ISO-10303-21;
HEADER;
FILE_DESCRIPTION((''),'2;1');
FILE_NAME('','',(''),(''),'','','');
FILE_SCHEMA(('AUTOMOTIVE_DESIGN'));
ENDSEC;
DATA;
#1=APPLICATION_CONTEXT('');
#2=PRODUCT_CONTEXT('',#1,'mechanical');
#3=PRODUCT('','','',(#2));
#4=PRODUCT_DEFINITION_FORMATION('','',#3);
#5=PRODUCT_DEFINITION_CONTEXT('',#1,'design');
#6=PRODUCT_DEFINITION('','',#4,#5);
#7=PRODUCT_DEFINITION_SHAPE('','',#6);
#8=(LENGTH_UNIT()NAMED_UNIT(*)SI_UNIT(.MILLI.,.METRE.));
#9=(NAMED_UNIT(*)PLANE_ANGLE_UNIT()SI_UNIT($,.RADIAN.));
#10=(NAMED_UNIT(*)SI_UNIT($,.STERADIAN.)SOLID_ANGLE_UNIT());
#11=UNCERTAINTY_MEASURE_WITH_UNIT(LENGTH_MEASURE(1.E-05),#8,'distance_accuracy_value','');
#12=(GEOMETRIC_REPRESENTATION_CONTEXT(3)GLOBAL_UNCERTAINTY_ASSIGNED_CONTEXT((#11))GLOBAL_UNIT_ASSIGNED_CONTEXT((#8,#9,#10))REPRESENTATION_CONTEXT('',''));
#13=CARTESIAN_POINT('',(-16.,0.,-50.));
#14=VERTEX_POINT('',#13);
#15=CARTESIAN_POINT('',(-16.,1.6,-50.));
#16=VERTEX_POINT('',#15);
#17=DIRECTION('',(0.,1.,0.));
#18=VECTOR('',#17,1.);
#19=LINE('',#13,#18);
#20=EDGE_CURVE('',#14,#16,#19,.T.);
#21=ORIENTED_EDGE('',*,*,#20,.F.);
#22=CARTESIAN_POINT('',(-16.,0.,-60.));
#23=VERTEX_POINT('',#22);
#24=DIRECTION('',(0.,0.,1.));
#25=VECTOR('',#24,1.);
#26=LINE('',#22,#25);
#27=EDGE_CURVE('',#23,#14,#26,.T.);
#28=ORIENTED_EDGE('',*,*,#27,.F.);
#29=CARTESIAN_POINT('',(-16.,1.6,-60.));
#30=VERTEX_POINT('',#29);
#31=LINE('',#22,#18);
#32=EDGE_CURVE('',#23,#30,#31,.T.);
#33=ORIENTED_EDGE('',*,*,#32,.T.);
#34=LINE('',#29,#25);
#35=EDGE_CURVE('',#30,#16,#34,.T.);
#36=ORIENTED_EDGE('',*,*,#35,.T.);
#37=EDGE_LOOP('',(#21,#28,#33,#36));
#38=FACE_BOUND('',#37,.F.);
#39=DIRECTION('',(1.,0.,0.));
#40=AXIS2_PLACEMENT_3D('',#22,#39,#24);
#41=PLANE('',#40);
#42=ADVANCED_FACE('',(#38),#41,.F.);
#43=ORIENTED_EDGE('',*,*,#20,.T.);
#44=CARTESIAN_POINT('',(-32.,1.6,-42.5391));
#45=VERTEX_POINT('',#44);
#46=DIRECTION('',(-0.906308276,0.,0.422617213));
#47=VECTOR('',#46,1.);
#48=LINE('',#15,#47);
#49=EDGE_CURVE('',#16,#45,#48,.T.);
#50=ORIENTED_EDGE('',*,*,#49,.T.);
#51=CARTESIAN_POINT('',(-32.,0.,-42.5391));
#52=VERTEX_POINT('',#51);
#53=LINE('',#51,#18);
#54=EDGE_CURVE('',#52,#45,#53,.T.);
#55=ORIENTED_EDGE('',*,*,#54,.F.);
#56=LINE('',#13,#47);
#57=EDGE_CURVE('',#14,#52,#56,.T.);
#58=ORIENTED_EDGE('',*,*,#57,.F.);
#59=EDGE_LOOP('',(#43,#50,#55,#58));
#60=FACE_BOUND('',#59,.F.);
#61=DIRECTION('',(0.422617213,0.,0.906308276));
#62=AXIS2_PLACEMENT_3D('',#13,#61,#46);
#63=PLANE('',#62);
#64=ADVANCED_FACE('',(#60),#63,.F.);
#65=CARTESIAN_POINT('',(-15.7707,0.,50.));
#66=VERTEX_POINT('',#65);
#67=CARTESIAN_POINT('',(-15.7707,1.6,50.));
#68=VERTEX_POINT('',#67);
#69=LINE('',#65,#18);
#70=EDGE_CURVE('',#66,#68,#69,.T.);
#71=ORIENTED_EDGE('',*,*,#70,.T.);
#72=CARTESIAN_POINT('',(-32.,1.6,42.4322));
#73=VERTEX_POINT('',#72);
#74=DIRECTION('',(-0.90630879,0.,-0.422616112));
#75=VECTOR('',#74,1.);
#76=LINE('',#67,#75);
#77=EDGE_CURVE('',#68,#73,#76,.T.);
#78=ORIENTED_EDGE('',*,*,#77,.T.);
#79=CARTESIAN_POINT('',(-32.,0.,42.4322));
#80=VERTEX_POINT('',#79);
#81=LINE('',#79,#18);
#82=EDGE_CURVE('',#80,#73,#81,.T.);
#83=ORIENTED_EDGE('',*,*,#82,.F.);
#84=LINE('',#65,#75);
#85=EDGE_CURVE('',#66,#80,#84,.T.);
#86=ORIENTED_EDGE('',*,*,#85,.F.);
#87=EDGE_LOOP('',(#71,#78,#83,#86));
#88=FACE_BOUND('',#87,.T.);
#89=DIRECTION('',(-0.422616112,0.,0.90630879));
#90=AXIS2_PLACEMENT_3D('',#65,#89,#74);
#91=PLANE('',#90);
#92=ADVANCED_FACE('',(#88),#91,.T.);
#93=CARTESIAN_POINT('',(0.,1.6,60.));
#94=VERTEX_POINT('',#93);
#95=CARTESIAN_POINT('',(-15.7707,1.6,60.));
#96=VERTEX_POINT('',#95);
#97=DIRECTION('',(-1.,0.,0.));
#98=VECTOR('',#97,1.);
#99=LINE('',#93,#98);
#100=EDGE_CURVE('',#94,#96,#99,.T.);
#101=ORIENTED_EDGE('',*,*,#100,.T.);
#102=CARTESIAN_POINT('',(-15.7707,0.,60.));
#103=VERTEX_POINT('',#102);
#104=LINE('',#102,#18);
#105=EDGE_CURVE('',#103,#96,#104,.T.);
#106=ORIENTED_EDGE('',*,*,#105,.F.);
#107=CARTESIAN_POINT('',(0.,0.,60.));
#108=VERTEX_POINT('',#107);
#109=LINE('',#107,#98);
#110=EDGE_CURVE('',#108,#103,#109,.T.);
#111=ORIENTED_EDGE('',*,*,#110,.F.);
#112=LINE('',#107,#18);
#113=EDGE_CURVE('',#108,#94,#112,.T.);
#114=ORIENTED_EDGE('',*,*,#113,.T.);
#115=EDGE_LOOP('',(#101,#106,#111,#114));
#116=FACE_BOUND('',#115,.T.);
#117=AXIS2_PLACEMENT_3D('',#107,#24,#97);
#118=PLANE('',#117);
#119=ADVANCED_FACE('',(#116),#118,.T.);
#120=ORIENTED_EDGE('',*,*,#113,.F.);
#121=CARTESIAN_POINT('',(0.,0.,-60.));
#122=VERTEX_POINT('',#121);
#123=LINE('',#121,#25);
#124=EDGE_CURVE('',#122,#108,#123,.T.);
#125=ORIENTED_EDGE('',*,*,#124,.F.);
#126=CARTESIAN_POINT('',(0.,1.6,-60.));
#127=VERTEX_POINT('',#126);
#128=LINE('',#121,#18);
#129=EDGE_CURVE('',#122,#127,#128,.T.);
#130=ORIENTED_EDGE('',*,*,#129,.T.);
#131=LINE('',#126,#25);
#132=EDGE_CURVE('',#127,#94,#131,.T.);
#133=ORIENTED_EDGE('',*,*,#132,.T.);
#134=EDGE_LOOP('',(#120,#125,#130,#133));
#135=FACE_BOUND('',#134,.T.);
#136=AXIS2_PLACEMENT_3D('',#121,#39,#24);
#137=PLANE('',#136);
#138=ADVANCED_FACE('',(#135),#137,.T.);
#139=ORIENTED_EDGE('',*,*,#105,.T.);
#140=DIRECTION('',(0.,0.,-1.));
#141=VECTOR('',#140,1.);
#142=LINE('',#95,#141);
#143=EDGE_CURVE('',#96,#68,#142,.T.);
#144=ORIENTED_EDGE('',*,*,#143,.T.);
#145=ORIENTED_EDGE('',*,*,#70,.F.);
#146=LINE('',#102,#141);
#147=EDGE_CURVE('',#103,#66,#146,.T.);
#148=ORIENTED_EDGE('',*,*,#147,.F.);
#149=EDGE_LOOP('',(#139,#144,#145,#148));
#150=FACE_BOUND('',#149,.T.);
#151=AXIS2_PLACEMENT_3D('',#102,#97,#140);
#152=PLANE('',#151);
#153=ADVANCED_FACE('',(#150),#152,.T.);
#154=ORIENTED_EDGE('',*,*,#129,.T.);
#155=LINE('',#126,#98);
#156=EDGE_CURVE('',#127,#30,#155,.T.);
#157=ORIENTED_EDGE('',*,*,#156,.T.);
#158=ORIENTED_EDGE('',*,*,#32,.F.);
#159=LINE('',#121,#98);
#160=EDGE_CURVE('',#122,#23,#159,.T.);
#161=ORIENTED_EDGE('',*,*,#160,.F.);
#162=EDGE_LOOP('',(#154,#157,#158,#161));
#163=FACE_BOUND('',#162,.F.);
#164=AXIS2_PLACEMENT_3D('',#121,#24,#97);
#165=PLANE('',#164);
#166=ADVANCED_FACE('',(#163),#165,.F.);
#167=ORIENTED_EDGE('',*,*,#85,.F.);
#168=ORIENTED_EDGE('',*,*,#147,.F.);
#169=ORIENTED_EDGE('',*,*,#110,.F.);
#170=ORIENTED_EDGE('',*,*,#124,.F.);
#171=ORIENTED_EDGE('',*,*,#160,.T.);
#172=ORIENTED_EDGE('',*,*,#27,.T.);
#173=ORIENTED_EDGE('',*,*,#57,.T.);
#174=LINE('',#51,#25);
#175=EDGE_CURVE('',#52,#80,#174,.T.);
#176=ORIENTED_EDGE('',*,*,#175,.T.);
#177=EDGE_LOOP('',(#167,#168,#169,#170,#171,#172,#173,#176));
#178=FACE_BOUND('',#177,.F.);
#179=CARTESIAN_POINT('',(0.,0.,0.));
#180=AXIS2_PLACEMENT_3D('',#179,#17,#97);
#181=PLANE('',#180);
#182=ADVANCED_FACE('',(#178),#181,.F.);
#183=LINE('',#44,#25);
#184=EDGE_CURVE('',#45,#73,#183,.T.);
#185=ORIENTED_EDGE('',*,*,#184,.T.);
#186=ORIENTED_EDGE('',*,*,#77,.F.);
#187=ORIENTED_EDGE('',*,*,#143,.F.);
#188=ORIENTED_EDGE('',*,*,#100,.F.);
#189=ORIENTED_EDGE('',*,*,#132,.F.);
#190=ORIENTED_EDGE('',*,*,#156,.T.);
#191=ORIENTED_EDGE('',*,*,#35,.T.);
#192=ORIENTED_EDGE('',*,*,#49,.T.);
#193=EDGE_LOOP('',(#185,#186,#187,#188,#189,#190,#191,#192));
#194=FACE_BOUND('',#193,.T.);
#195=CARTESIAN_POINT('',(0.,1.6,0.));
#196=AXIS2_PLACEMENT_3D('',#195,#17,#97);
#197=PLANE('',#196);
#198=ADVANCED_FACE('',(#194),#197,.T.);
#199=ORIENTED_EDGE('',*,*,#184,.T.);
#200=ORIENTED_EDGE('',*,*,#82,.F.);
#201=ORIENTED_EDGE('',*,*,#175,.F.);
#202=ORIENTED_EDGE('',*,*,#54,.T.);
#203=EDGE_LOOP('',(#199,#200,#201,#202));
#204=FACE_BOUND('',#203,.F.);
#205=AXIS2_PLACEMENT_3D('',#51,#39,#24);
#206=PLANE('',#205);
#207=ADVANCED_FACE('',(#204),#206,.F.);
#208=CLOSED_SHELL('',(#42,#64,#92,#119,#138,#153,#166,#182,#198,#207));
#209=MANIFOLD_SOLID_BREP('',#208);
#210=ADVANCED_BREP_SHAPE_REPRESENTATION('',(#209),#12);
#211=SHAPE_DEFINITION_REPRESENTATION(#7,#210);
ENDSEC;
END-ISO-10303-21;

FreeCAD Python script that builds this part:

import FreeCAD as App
import Part
import Sketcher

V = App.Vector
Q = App.Units.Quantity

doc = App.newDocument("Part")
body = doc.addObject("PartDesign::Body", "Body")

# Sketch on XZ plane
sketch1 = body.newObject("Sketcher::SketchObject", "Sketch")
sketch1.AttachmentSupport = (doc.getObject("XZ_Plane"), [""])
sketch1.MapMode = "FlatFace"
sketch1.addGeometry([
    Part.LineSegment(V(0, 60, 0), V(0, -60, 0)),  # 0
    Part.LineSegment(V(0, -60, 0), V(-16, -60, 0)),  # 1
    Part.LineSegment(V(-16, -60, 0), V(-16, -50, 0)),  # 2
    Part.LineSegment(V(-16, -50, 0), V(-32, -43, 0)),  # 3
    Part.LineSegment(V(-32, -43, 0), V(-32, 42, 0)),  # 4
    Part.LineSegment(V(-32, 42, 0), V(-16, 50, 0)),  # 5
    Part.LineSegment(V(-16, 50, 0), V(-16, 60, 0)),  # 6
    Part.LineSegment(V(-16, 60, 0), V(0, 60, 0)),  # 7
], False)
sketch1.addConstraint([
    Sketcher.Constraint("Coincident", 0, 2, 1, 1),
    Sketcher.Constraint("Coincident", 1, 2, 2, 1),
    Sketcher.Constraint("Coincident", 2, 2, 3, 1),
    Sketcher.Constraint("Coincident", 3, 2, 4, 1),
    Sketcher.Constraint("Coincident", 4, 2, 5, 1),
    Sketcher.Constraint("Coincident", 5, 2, 6, 1),
    Sketcher.Constraint("Coincident", 6, 2, 7, 1),
    Sketcher.Constraint("Coincident", 7, 2, 0, 1),
    Sketcher.Constraint("Vertical", 0),
    Sketcher.Constraint("Horizontal", 1),
    Sketcher.Constraint("Vertical", 2),
    Sketcher.Constraint("Vertical", 4),
    Sketcher.Constraint("Vertical", 6),
    Sketcher.Constraint("Horizontal", 7),
    Sketcher.Constraint("Symmetric", 0, 2, 7, 2, -1, 1),
    Sketcher.Constraint("Equal", 2, 6),
    Sketcher.Constraint("DistanceY", 0, 2, 0, 1, Q("4.7244 in")),
    Sketcher.Constraint("DistanceY", 2, 1, 2, 2, Q("0.3937 in")),
    Sketcher.Constraint("Angle", 3, Q("155 deg")),
    Sketcher.Constraint("Angle", 5, Q("24.9999 deg")),
    Sketcher.Constraint("DistanceX", 1, 2, 1, 1, Q("16 mm")),
    Sketcher.Constraint("DistanceX", 3, 2, 2, 2, Q("16 mm")),
    Sketcher.Constraint("Distance", 5, Q("0.705 in")),
])
pad1 = body.newObject("PartDesign::Pad", "Pad")
pad1.Profile = sketch1
pad1.Length = Q("0.0629921 in")
pad1.Reversed = True

doc.recompute()
